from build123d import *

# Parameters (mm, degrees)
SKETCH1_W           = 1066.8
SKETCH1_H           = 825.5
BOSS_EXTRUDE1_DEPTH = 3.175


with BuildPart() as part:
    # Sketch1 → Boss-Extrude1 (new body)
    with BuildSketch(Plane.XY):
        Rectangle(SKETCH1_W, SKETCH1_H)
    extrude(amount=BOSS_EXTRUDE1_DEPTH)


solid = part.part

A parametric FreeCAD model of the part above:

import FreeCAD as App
import Part
import Sketcher
Q = App.Units.Quantity


def add_polygon(sketch, points):
    """Adds a closed chain of lines whose ends are joined by coincident constraints."""
    first, n = sketch.GeometryCount, len(points)
    for a, b in zip(points, points[1:] + points[:1]):
        sketch.addGeometry(Part.LineSegment(App.Vector(*a, 0), App.Vector(*b, 0)), False)
    for i in range(n):
        sketch.addConstraint(Sketcher.Constraint("Coincident", first + i, 2, first + (i + 1) % n, 1))

doc = App.newDocument("Part")
body = doc.addObject("PartDesign::Body", "Body")

# Sketch on XY plane
sketch1 = body.newObject("Sketcher::SketchObject", "Sketch")
sketch1.AttachmentSupport = (doc.getObject("XY_Plane"), [""])
sketch1.MapMode = "FlatFace"
add_polygon(sketch1, [(-533.4, 412.75), (-533.4, -412.75), (533.4, -412.75), (533.4, 412.75)])  # lines 0-3
sketch1.addConstraint([
    Sketcher.Constraint("Vertical", 0),
    Sketcher.Constraint("Horizontal", 1),
    Sketcher.Constraint("Vertical", 2),
    Sketcher.Constraint("Horizontal", 3),
    Sketcher.Constraint("Symmetric", 0, 2, 2, 2, -1, 1),
    Sketcher.Constraint("DistanceX", 1, 1, 1, 2, Q("42 in")),
    Sketcher.Constraint("DistanceY", 0, 2, 0, 1, Q("32.5 in")),
])
pad1 = body.newObject("PartDesign::Pad", "Pad")
pad1.Profile = sketch1
pad1.Length = Q("0.125 in")

doc.recompute()
